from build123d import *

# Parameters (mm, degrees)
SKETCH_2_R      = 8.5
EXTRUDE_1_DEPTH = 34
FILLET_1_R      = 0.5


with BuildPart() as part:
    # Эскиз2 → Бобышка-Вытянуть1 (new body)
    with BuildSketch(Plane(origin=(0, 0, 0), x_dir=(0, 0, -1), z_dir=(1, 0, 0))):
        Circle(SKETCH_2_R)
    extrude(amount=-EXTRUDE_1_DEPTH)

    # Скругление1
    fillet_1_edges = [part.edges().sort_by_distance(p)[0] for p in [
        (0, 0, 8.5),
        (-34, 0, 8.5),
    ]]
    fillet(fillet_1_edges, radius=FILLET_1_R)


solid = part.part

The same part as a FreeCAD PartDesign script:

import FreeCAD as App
import Part
import Sketcher
from FreeCAD import Vector
Q = App.Units.Quantity


def edges_at(feature, points):
    """Names of the edges that pass closest to the given points."""
    edges = feature.Shape.Edges
    near = lambda p: min(range(len(edges)), key=lambda i: edges[i].distToShape(Part.Vertex(*p))[0])
    return sorted({f"Edge{near(p) + 1}" for p in points})

doc = App.newDocument("Part")
params = doc.addObject("Spreadsheet::Sheet", "Params")
for row, (alias, value) in enumerate([
    ("sketch1_diameter", "17 mm"),
    ("pad1_length", "34 mm"),
    ("fillet_radius", "0.5 mm"),
], start=1):
    params.set(f"A{row}", alias)
    params.set(f"B{row}", "=" + value)
    params.setAlias(f"B{row}", alias)

body = doc.addObject("PartDesign::Body", "Body")

# Sketch on YZ plane
sketch1 = doc.addObject("Sketcher::SketchObject", "Sketch")
body.addObject(sketch1)
sketch1.AttachmentSupport = (doc.YZ_Plane, [""])
sketch1.MapMode = "FlatFace"
sketch1.addGeometry(Part.Circle(Vector(0, 0, 0), Vector(0, 0, 1), 8.5), False)
sketch1.addConstraint([
    Sketcher.Constraint("Coincident", 0, 3, -1, 1),
    Sketcher.Constraint("Diameter", 0, Q("17 mm")),
])
sketch1.setExpression("Constraints[1]", "Params.sketch1_diameter")
pad1 = doc.addObject("PartDesign::Pad", "Pad")
body.addObject(pad1)
pad1.Profile = sketch1
pad1.setExpression("Length", "Params.pad1_length")
pad1.Reversed = True
doc.recompute()

fillet = doc.addObject("PartDesign::Fillet", "Fillet")
body.addObject(fillet)
fillet.Base = (pad1, edges_at(pad1, [(0, 0, 8.5), (-34, 0, 8.5)]))
fillet.setExpression("Radius", "Params.fillet_radius")

doc.recompute()
